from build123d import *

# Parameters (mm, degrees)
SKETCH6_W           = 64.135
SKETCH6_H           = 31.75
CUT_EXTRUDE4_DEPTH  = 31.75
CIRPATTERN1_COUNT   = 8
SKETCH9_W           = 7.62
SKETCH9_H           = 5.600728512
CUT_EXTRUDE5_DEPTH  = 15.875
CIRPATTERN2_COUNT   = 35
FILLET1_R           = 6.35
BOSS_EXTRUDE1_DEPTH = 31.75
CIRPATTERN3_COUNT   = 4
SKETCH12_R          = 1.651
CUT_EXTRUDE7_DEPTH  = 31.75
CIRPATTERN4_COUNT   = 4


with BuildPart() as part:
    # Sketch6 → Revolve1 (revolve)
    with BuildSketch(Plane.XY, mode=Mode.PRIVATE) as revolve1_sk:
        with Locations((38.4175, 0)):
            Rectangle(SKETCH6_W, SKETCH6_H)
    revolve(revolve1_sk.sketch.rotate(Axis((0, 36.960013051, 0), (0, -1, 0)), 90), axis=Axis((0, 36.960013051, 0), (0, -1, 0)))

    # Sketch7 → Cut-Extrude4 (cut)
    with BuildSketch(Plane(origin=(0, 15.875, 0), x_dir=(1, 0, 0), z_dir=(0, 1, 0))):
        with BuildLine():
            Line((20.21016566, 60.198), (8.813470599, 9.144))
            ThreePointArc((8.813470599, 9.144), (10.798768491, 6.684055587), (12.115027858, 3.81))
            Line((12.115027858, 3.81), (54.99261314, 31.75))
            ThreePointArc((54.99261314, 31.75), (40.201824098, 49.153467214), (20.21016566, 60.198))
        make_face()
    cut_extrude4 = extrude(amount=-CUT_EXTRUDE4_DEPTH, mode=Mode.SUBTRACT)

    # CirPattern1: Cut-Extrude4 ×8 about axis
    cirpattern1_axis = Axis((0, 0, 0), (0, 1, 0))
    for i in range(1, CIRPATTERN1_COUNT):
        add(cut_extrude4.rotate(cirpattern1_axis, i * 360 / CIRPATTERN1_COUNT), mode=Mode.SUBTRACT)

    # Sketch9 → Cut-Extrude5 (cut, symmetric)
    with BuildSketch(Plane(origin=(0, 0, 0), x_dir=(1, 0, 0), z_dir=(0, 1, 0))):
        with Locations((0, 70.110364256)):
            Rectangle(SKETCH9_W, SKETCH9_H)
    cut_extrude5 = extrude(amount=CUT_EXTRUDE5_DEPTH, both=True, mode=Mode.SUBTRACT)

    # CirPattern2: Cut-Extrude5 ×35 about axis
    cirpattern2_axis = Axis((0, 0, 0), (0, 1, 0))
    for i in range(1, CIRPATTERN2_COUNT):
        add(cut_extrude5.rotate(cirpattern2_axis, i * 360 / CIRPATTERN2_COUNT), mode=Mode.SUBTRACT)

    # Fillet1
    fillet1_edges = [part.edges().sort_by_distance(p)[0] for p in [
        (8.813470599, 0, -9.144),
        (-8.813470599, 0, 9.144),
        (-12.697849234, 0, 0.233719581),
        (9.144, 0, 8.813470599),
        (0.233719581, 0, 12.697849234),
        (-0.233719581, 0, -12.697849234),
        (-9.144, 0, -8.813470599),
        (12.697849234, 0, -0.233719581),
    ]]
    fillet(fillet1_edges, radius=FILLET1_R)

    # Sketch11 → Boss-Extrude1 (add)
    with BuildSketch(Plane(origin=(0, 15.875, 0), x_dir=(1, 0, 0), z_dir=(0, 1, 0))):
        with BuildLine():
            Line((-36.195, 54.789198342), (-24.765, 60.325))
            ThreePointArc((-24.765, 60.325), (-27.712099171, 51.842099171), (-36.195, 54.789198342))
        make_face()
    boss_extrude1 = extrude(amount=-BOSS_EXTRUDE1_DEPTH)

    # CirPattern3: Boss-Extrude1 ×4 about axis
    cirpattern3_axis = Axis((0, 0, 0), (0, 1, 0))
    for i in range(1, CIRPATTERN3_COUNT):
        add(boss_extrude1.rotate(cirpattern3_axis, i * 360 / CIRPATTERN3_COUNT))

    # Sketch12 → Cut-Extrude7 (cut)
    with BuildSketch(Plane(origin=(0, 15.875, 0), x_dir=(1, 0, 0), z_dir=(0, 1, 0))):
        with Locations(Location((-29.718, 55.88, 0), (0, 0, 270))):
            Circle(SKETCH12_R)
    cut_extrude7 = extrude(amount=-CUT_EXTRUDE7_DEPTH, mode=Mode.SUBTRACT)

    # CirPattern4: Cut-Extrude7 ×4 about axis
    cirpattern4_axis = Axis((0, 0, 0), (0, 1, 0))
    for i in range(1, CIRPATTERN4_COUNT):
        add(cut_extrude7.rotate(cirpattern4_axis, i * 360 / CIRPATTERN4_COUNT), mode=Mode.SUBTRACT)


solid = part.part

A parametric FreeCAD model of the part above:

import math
import FreeCAD as App
import Part
import Sketcher
from FreeCAD import Vector
Q = App.Units.Quantity


def edges_at(feature, points):
    """Names of the edges that pass closest to the given points."""
    edges = feature.Shape.Edges
    near = lambda p: min(range(len(edges)), key=lambda i: edges[i].distToShape(Part.Vertex(*p))[0])
    return sorted({f"Edge{near(p) + 1}" for p in points})

doc = App.newDocument("Part")
body = doc.addObject("PartDesign::Body", "Body")

sketch1 = doc.addObject("Sketcher::SketchObject", "Sketch")
body.addObject(sketch1)
sketch1.AttachmentSupport = (doc.XY_Plane, [""])
sketch1.MapMode = "FlatFace"
sketch1.addGeometry(Part.LineSegment(Vector(6, 16, 0), Vector(6, -16, 0)), False)
sketch1.addGeometry(Part.LineSegment(Vector(6, -16, 0), Vector(70, -16, 0)), False)
sketch1.addGeometry(Part.LineSegment(Vector(70, -16, 0), Vector(70, 16, 0)), False)
sketch1.addGeometry(Part.LineSegment(Vector(70, 16, 0), Vector(6, 16, 0)), False)
sketch1.addConstraint(Sketcher.Constraint("Coincident", 0, 2, 1, 1))
sketch1.addConstraint(Sketcher.Constraint("Coincident", 1, 2, 2, 1))
sketch1.addConstraint(Sketcher.Constraint("Coincident", 2, 2, 3, 1))
sketch1.addConstraint(Sketcher.Constraint("Coincident", 3, 2, 0, 1))
sketch1.addConstraint(Sketcher.Constraint("Vertical", 0))
sketch1.addConstraint(Sketcher.Constraint("Horizontal", 1))
sketch1.addConstraint(Sketcher.Constraint("Vertical", 2))
sketch1.addConstraint(Sketcher.Constraint("Horizontal", 3))
sketch1.addConstraint(Sketcher.Constraint("DistanceY", 0, 2, 0, 1, Q("1.25 in")))
sketch1.addConstraint(Sketcher.Constraint("DistanceX", 1, 1, 1, 2, Q("2.525 in")))
sketch1.addConstraint(Sketcher.Constraint("DistanceX", -1, 1, 0, 2, Q("0.25 in")))
sketch1.addConstraint(Sketcher.Constraint("DistanceY", 0, 2, -1, 1, Q("0.625 in")))
revolution = doc.addObject("PartDesign::Revolution", "Revolution")
body.addObject(revolution)
revolution.Profile = sketch1
revolution.ReferenceAxis = (sketch1, ["V_Axis"])
revolution.Angle = 360

sketch2 = doc.addObject("Sketcher::SketchObject", "Sketch001")
body.addObject(sketch2)
sketch2.AttachmentSupport = (doc.XZ_Plane, [""])
sketch2.MapMode = "FlatFace"
sketch2.AttachmentOffset = App.Placement(Vector(0, 0, -0.625 * 25.4), App.Rotation())
sketch2.addGeometry(Part.LineSegment(Vector(20, -60, 0), Vector(9, -9, 0)), False)
sketch2.addGeometry(Part.ArcOfCircle(Part.Circle(Vector(0, 0, 0), Vector(0, 0, 1), 13), math.radians(-46), math.radians(-17)), False)
sketch2.addGeometry(Part.LineSegment(Vector(12, -4, 0), Vector(55, -32, 0)), False)
sketch2.addGeometry(Part.ArcOfCircle(Part.Circle(Vector(0, 0, 0), Vector(0, 0, 1), 64), math.radians(-71), math.radians(-30)), False)
sketch2.addConstraint(Sketcher.Constraint("Coincident", 0, 2, 1, 1))
sketch2.addConstraint(Sketcher.Constraint("Coincident", 1, 2, 2, 1))
sketch2.addConstraint(Sketcher.Constraint("Coincident", 2, 2, 3, 2))
sketch2.addConstraint(Sketcher.Constraint("Coincident", 3, 1, 0, 1))
sketch2.addConstraint(Sketcher.Constraint("Coincident", 1, 3, -1, 1))
sketch2.addConstraint(Sketcher.Constraint("Coincident", 3, 3, -1, 1))
sketch2.addConstraint(Sketcher.Constraint("Radius", 1, Q("0.5 in")))
sketch2.addConstraint(Sketcher.Constraint("Radius", 3, Q("2.5 in")))
sketch2.addConstraint(Sketcher.Constraint("DistanceY", 2, 2, 1, 2, Q("1.1 in")))
sketch2.addConstraint(Sketcher.Constraint("DistanceY", 0, 2, -1, 1, Q("0.36 in")))
sketch2.addConstraint(Sketcher.Constraint("DistanceY", 1, 2, -1, 1, Q("0.15 in")))
sketch2.addConstraint(Sketcher.Constraint("DistanceY", 3, 1, -1, 1, Q("2.37 in")))
pocket1 = doc.addObject("PartDesign::Pocket", "Pocket")
body.addObject(pocket1)
pocket1.Profile = sketch2
pocket1.Length = Q("1.25 in")
pocket1.Reversed = True
doc.recompute()

polarpattern = doc.addObject("PartDesign::PolarPattern", "PolarPattern")
body.addObject(polarpattern)
polarpattern.Originals = [pocket1]
polarpattern.Axis = (doc.Y_Axis, [""])
polarpattern.Angle = 360
polarpattern.Occurrences = 8
body.Tip = polarpattern

sketch3 = doc.addObject("Sketcher::SketchObject", "Sketch002")
body.addObject(sketch3)
sketch3.AttachmentSupport = (doc.XZ_Plane, [""])
sketch3.MapMode = "FlatFace"
sketch3.addGeometry(Part.LineSegment(Vector(-4, -73, 0), Vector(-4, -67, 0)), False)
sketch3.addGeometry(Part.LineSegment(Vector(-4, -67, 0), Vector(4, -67, 0)), False)
sketch3.addGeometry(Part.LineSegment(Vector(4, -67, 0), Vector(4, -73, 0)), False)
sketch3.addGeometry(Part.LineSegment(Vector(4, -73, 0), Vector(-4, -73, 0)), False)
sketch3.addConstraint(Sketcher.Constraint("Coincident", 0, 2, 1, 1))
sketch3.addConstraint(Sketcher.Constraint("Coincident", 1, 2, 2, 1))
sketch3.addConstraint(Sketcher.Constraint("Coincident", 2, 2, 3, 1))
sketch3.addConstraint(Sketcher.Constraint("Coincident", 3, 2, 0, 1))
sketch3.addConstraint(Sketcher.Constraint("Vertical", 0))
sketch3.addConstraint(Sketcher.Constraint("Horizontal", 1))
sketch3.addConstraint(Sketcher.Constraint("Vertical", 2))
sketch3.addConstraint(Sketcher.Constraint("Horizontal", 3))
sketch3.addConstraint(Sketcher.Constraint("DistanceX", 1, 1, 1, 2, Q("0.3 in")))
sketch3.addConstraint(Sketcher.Constraint("DistanceX", 0, 2, -1, 1, Q("0.15 in")))
sketch3.addConstraint(Sketcher.Constraint("DistanceY", 0, 2, -1, 1, Q("2.65 in")))
sketch3.addConstraint(Sketcher.Constraint("DistanceY", 0, 1, 0, 2, 5.600729))
pocket2 = doc.addObject("PartDesign::Pocket", "Pocket001")
body.addObject(pocket2)
pocket2.Profile = sketch3
pocket2.Length = Q("1.25 in")
pocket2.Midplane = True
doc.recompute()

polarpattern2 = doc.addObject("PartDesign::PolarPattern", "PolarPattern001")
body.addObject(polarpattern2)
polarpattern2.Originals = [pocket2]
polarpattern2.Axis = (doc.Y_Axis, [""])
polarpattern2.Angle = 360
polarpattern2.Occurrences = 35
body.Tip = polarpattern2
doc.recompute()

fillet = doc.addObject("PartDesign::Fillet", "Fillet")
body.addObject(fillet)
fillet.Base = (polarpattern2, edges_at(polarpattern2, [
    (8.813, 0, -9.144),
    (-8.813, 0, 9.144),
    (-12.698, 0, 0.234),
    (9.144, 0, 8.813),
    (0.234, 0, 12.698),
    (-0.234, 0, -12.698),
    (-9.144, 0, -8.813),
    (12.698, 0, -0.234),
]))
fillet.Radius = Q("0.25 in")

sketch4 = doc.addObject("Sketcher::SketchObject", "Sketch003")
body.addObject(sketch4)
sketch4.AttachmentSupport = (doc.XZ_Plane, [""])
sketch4.MapMode = "FlatFace"
sketch4.AttachmentOffset = App.Placement(Vector(0, 0, -0.625 * 25.4), App.Rotation())
sketch4.addGeometry(Part.LineSegment(Vector(-25, -60, 0), Vector(-36, -55, 0)), False)
sketch4.addGeometry(Part.ArcOfCircle(Part.Circle(Vector(-30, -58, 0), Vector(0, 0, 1), 6), math.radians(-26), math.radians(154)), False)
sketch4.addConstraint(Sketcher.Constraint("Coincident", 0, 1, 1, 1))
sketch4.addConstraint(Sketcher.Constraint("Coincident", 1, 2, 0, 2))
sketch4.addConstraint(Sketcher.Constraint("Radius", 1, Q("0.25 in")))
sketch4.addConstraint(Sketcher.Constraint("DistanceX", 1, 3, -1, 1, Q("1.2 in")))
sketch4.addConstraint(Sketcher.Constraint("DistanceX", 1, 2, 0, 1, Q("0.45 in")))
sketch4.addConstraint(Sketcher.Constraint("DistanceX", 0, 1, -1, 1, Q("0.975 in")))
sketch4.addConstraint(Sketcher.Constraint("DistanceY", 0, 1, -1, 1, Q("2.375 in")))
pad1 = doc.addObject("PartDesign::Pad", "Pad")
body.addObject(pad1)
pad1.Profile = sketch4
pad1.Length = Q("1.25 in")
doc.recompute()

polarpattern3 = doc.addObject("PartDesign::PolarPattern", "PolarPattern002")
body.addObject(polarpattern3)
polarpattern3.Originals = [pad1]
polarpattern3.Axis = (doc.Y_Axis, [""])
polarpattern3.Angle = 360
polarpattern3.Occurrences = 4
body.Tip = polarpattern3

sketch5 = doc.addObject("Sketcher::SketchObject", "Sketch004")
body.addObject(sketch5)
sketch5.AttachmentSupport = (doc.XZ_Plane, [""])
sketch5.MapMode = "FlatFace"
sketch5.AttachmentOffset = App.Placement(Vector(0, 0, -0.625 * 25.4), App.Rotation())
sketch5.addGeometry(Part.Circle(Vector(-29.7, -55.9, 0), Vector(0, 0, 1), 1.7), False)
sketch5.addConstraint(Sketcher.Constraint("Diameter", 0, Q("0.13 in")))
sketch5.addConstraint(Sketcher.Constraint("DistanceY", 0, 3, -1, 1, Q("2.2 in")))
sketch5.addConstraint(Sketcher.Constraint("DistanceX", 0, 3, -1, 1, Q("1.17 in")))
pocket3 = doc.addObject("PartDesign::Pocket", "Pocket002")
body.addObject(pocket3)
pocket3.Profile = sketch5
pocket3.Length = Q("1.25 in")
pocket3.Reversed = True
doc.recompute()

polarpattern4 = doc.addObject("PartDesign::PolarPattern", "PolarPattern003")
body.addObject(polarpattern4)
polarpattern4.Originals = [pocket3]
polarpattern4.Axis = (doc.Y_Axis, [""])
polarpattern4.Angle = 360
polarpattern4.Occurrences = 4
body.Tip = polarpattern4

doc.recompute()
